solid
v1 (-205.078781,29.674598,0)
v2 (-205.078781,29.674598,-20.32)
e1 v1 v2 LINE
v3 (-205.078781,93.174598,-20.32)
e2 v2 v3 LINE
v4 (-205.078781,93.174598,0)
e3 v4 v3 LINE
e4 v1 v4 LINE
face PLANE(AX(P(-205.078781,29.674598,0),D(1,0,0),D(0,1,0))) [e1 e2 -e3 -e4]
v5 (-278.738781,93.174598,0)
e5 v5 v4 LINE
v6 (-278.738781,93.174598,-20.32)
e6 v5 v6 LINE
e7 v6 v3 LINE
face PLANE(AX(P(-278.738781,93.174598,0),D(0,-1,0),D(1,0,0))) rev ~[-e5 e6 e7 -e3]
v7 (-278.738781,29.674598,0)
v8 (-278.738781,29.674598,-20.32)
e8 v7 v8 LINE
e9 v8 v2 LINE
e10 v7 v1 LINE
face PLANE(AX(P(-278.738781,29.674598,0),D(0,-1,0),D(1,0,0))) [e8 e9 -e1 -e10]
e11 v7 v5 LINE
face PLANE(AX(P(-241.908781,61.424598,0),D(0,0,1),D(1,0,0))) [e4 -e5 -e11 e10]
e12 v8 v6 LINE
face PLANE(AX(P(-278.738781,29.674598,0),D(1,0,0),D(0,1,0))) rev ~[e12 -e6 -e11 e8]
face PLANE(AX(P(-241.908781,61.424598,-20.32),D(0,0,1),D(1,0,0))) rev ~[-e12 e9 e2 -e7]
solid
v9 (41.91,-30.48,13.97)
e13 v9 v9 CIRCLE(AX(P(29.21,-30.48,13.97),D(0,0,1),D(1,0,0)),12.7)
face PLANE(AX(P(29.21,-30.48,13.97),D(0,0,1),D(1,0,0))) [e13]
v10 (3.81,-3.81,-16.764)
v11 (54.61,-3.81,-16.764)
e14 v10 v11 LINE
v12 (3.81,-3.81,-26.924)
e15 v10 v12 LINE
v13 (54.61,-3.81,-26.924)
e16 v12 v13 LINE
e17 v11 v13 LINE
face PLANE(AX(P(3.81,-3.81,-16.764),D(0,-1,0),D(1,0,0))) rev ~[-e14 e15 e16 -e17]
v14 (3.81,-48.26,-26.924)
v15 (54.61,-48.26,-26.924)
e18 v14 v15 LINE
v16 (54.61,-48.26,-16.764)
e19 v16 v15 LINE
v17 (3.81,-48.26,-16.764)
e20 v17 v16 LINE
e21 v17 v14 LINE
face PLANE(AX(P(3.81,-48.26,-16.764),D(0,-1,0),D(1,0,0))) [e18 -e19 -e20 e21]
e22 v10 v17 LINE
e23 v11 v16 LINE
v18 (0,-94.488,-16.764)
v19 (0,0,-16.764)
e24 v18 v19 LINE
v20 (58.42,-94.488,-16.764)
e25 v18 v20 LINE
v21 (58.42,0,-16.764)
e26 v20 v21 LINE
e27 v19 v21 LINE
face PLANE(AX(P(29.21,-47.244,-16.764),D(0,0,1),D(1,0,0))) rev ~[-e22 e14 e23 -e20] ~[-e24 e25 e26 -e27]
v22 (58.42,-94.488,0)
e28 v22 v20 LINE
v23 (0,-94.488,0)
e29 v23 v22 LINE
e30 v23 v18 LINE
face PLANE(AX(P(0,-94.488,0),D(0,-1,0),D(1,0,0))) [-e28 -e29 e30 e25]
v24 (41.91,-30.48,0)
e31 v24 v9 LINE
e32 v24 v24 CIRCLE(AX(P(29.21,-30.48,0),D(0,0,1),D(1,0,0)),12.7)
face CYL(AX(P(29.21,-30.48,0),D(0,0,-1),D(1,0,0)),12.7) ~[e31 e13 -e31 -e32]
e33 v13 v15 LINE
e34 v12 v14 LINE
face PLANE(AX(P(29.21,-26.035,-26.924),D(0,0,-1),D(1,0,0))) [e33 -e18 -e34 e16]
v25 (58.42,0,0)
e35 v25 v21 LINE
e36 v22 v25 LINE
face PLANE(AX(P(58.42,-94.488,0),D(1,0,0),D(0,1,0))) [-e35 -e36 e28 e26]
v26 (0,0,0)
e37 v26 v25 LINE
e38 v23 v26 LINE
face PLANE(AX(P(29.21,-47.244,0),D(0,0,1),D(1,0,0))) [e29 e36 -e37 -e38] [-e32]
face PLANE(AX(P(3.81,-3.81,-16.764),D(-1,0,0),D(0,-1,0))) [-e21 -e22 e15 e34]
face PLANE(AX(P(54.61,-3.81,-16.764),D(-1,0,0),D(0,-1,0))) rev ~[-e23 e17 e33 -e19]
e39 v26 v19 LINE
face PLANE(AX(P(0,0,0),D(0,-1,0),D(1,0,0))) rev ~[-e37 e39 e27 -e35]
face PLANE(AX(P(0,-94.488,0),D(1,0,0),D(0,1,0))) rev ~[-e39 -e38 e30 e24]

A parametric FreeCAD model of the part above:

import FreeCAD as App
import Part
import Sketcher
Q = App.Units.Quantity

doc = App.newDocument("Part")
body = doc.addObject("PartDesign::Body", "Body")

# Sketch on XY plane
sketch1 = doc.addObject("Sketcher::SketchObject", "Sketch")
body.addObject(sketch1)
sketch1.AttachmentSupport = (doc.XY_Plane, [""])
sketch1.MapMode = "FlatFace"
sketch1.addGeometry([
    Part.LineSegment(App.Vector(0, 0, 0), App.Vector(0, -94.488, 0)),
    Part.LineSegment(App.Vector(0, -94.488, 0), App.Vector(58.42, -94.488, 0)),
    Part.LineSegment(App.Vector(58.42, -94.488, 0), App.Vector(58.42, 0, 0)),
    Part.LineSegment(App.Vector(58.42, 0, 0), App.Vector(0, 0, 0)),
], False)
sketch1.addConstraint([
    Sketcher.Constraint("Coincident", 0, 2, 1, 1),
    Sketcher.Constraint("Coincident", 1, 2, 2, 1),
    Sketcher.Constraint("Coincident", 2, 2, 3, 1),
    Sketcher.Constraint("Coincident", 3, 2, 0, 1),
    Sketcher.Constraint("Vertical", 0),
    Sketcher.Constraint("Horizontal", 1),
    Sketcher.Constraint("Vertical", 2),
    Sketcher.Constraint("Horizontal", 3),
    Sketcher.Constraint("Coincident", 3, 2, -1, 1),
    Sketcher.Constraint("DistanceX", 1, 1, 1, 2, Q("2.3 in")),
    Sketcher.Constraint("DistanceY", 0, 2, 0, 1, Q("3.72 in")),
])
pad1 = doc.addObject("PartDesign::Pad", "Pad")
body.addObject(pad1)
pad1.Profile = sketch1
pad1.Length = Q("0.66 in")
pad1.Reversed = True

# Sketch on XY plane
sketch2 = doc.addObject("Sketcher::SketchObject", "Sketch001")
body.addObject(sketch2)
sketch2.AttachmentSupport = (doc.XY_Plane, [""])
sketch2.MapMode = "FlatFace"
sketch2.addGeometry(Part.Circle(App.Vector(29.21, -30.48, 0), App.Vector(0, 0, 1), 12.7), False)
sketch2.addConstraint([
    Sketcher.Constraint("Diameter", 0, Q("1 in")),
    Sketcher.Constraint("DistanceY", 0, 3, -1, 1, Q("1.2 in")),
    Sketcher.Constraint("DistanceX", -1, 1, 0, 3, Q("1.15 in")),
])
pad2 = doc.addObject("PartDesign::Pad", "Pad001")
body.addObject(pad2)
pad2.Profile = sketch2
pad2.Length = Q("0.55 in")

# Sketch on XY plane
sketch3 = doc.addObject("Sketcher::SketchObject", "Sketch002")
body.addObject(sketch3)
sketch3.AttachmentSupport = (doc.XY_Plane, [""])
sketch3.MapMode = "FlatFace"
sketch3.AttachmentOffset = App.Placement(App.Vector(0, 0, -0.66 * 25.4), App.Rotation())
sketch3.addGeometry([
    Part.LineSegment(App.Vector(3.81, -48.26, 0), App.Vector(3.81, -3.81, 0)),
    Part.LineSegment(App.Vector(3.81, -3.81, 0), App.Vector(54.61, -3.81, 0)),
    Part.LineSegment(App.Vector(54.61, -3.81, 0), App.Vector(54.61, -48.26, 0)),
    Part.LineSegment(App.Vector(54.61, -48.26, 0), App.Vector(3.81, -48.26, 0)),
], False)
sketch3.addConstraint([
    Sketcher.Constraint("Coincident", 0, 2, 1, 1),
    Sketcher.Constraint("Coincident", 1, 2, 2, 1),
    Sketcher.Constraint("Coincident", 2, 2, 3, 1),
    Sketcher.Constraint("Coincident", 3, 2, 0, 1),
    Sketcher.Constraint("Vertical", 0),
    Sketcher.Constraint("Horizontal", 1),
    Sketcher.Constraint("Vertical", 2),
    Sketcher.Constraint("Horizontal", 3),
    Sketcher.Constraint("DistanceX", 1, 1, 1, 2, Q("2 in")),
    Sketcher.Constraint("DistanceY", 0, 1, 0, 2, Q("1.75 in")),
    Sketcher.Constraint("DistanceY", 2, 2, -1, 1, Q("1.9 in")),
    Sketcher.Constraint("DistanceX", -1, 1, 0, 2, Q("0.15 in")),
])
pad3 = doc.addObject("PartDesign::Pad", "Pad002")
body.addObject(pad3)
pad3.Profile = sketch3
pad3.Length = Q("0.4 in")
pad3.Reversed = True
body2 = doc.addObject("PartDesign::Body", "Body001")

# Sketch on XY plane
sketch4 = doc.addObject("Sketcher::SketchObject", "Sketch003")
body2.addObject(sketch4)
sketch4.AttachmentSupport = (doc.getObject("XY_Plane001"), [""])
sketch4.MapMode = "FlatFace"
sketch4.addGeometry([
    Part.LineSegment(App.Vector(-278.738781, 93.174598, 0), App.Vector(-278.738781, 29.674598, 0)),
    Part.LineSegment(App.Vector(-278.738781, 29.674598, 0), App.Vector(-205.078781, 29.674598, 0)),
    Part.LineSegment(App.Vector(-205.078781, 29.674598, 0), App.Vector(-205.078781, 93.174598, 0)),
    Part.LineSegment(App.Vector(-205.078781, 93.174598, 0), App.Vector(-278.738781, 93.174598, 0)),
], False)
sketch4.addConstraint([
    Sketcher.Constraint("Coincident", 0, 2, 1, 1),
    Sketcher.Constraint("Coincident", 1, 2, 2, 1),
    Sketcher.Constraint("Coincident", 2, 2, 3, 1),
    Sketcher.Constraint("Coincident", 3, 2, 0, 1),
    Sketcher.Constraint("Vertical", 0),
    Sketcher.Constraint("Horizontal", 1),
    Sketcher.Constraint("Vertical", 2),
    Sketcher.Constraint("Horizontal", 3),
    Sketcher.Constraint("DistanceX", 1, 1, 1, 2, Q("2.9 in")),
    Sketcher.Constraint("DistanceY", 0, 2, 0, 1, Q("2.5 in")),
    Sketcher.Constraint("DistanceX", 0, 2, -1, 1, Q("278.738781 mm")),
    Sketcher.Constraint("DistanceY", -1, 1, 0, 2, Q("29.674598 mm")),
])
pad4 = doc.addObject("PartDesign::Pad", "Pad003")
body2.addObject(pad4)
pad4.Profile = sketch4
pad4.Length = Q("0.8 in")
pad4.Reversed = True

doc.recompute()
